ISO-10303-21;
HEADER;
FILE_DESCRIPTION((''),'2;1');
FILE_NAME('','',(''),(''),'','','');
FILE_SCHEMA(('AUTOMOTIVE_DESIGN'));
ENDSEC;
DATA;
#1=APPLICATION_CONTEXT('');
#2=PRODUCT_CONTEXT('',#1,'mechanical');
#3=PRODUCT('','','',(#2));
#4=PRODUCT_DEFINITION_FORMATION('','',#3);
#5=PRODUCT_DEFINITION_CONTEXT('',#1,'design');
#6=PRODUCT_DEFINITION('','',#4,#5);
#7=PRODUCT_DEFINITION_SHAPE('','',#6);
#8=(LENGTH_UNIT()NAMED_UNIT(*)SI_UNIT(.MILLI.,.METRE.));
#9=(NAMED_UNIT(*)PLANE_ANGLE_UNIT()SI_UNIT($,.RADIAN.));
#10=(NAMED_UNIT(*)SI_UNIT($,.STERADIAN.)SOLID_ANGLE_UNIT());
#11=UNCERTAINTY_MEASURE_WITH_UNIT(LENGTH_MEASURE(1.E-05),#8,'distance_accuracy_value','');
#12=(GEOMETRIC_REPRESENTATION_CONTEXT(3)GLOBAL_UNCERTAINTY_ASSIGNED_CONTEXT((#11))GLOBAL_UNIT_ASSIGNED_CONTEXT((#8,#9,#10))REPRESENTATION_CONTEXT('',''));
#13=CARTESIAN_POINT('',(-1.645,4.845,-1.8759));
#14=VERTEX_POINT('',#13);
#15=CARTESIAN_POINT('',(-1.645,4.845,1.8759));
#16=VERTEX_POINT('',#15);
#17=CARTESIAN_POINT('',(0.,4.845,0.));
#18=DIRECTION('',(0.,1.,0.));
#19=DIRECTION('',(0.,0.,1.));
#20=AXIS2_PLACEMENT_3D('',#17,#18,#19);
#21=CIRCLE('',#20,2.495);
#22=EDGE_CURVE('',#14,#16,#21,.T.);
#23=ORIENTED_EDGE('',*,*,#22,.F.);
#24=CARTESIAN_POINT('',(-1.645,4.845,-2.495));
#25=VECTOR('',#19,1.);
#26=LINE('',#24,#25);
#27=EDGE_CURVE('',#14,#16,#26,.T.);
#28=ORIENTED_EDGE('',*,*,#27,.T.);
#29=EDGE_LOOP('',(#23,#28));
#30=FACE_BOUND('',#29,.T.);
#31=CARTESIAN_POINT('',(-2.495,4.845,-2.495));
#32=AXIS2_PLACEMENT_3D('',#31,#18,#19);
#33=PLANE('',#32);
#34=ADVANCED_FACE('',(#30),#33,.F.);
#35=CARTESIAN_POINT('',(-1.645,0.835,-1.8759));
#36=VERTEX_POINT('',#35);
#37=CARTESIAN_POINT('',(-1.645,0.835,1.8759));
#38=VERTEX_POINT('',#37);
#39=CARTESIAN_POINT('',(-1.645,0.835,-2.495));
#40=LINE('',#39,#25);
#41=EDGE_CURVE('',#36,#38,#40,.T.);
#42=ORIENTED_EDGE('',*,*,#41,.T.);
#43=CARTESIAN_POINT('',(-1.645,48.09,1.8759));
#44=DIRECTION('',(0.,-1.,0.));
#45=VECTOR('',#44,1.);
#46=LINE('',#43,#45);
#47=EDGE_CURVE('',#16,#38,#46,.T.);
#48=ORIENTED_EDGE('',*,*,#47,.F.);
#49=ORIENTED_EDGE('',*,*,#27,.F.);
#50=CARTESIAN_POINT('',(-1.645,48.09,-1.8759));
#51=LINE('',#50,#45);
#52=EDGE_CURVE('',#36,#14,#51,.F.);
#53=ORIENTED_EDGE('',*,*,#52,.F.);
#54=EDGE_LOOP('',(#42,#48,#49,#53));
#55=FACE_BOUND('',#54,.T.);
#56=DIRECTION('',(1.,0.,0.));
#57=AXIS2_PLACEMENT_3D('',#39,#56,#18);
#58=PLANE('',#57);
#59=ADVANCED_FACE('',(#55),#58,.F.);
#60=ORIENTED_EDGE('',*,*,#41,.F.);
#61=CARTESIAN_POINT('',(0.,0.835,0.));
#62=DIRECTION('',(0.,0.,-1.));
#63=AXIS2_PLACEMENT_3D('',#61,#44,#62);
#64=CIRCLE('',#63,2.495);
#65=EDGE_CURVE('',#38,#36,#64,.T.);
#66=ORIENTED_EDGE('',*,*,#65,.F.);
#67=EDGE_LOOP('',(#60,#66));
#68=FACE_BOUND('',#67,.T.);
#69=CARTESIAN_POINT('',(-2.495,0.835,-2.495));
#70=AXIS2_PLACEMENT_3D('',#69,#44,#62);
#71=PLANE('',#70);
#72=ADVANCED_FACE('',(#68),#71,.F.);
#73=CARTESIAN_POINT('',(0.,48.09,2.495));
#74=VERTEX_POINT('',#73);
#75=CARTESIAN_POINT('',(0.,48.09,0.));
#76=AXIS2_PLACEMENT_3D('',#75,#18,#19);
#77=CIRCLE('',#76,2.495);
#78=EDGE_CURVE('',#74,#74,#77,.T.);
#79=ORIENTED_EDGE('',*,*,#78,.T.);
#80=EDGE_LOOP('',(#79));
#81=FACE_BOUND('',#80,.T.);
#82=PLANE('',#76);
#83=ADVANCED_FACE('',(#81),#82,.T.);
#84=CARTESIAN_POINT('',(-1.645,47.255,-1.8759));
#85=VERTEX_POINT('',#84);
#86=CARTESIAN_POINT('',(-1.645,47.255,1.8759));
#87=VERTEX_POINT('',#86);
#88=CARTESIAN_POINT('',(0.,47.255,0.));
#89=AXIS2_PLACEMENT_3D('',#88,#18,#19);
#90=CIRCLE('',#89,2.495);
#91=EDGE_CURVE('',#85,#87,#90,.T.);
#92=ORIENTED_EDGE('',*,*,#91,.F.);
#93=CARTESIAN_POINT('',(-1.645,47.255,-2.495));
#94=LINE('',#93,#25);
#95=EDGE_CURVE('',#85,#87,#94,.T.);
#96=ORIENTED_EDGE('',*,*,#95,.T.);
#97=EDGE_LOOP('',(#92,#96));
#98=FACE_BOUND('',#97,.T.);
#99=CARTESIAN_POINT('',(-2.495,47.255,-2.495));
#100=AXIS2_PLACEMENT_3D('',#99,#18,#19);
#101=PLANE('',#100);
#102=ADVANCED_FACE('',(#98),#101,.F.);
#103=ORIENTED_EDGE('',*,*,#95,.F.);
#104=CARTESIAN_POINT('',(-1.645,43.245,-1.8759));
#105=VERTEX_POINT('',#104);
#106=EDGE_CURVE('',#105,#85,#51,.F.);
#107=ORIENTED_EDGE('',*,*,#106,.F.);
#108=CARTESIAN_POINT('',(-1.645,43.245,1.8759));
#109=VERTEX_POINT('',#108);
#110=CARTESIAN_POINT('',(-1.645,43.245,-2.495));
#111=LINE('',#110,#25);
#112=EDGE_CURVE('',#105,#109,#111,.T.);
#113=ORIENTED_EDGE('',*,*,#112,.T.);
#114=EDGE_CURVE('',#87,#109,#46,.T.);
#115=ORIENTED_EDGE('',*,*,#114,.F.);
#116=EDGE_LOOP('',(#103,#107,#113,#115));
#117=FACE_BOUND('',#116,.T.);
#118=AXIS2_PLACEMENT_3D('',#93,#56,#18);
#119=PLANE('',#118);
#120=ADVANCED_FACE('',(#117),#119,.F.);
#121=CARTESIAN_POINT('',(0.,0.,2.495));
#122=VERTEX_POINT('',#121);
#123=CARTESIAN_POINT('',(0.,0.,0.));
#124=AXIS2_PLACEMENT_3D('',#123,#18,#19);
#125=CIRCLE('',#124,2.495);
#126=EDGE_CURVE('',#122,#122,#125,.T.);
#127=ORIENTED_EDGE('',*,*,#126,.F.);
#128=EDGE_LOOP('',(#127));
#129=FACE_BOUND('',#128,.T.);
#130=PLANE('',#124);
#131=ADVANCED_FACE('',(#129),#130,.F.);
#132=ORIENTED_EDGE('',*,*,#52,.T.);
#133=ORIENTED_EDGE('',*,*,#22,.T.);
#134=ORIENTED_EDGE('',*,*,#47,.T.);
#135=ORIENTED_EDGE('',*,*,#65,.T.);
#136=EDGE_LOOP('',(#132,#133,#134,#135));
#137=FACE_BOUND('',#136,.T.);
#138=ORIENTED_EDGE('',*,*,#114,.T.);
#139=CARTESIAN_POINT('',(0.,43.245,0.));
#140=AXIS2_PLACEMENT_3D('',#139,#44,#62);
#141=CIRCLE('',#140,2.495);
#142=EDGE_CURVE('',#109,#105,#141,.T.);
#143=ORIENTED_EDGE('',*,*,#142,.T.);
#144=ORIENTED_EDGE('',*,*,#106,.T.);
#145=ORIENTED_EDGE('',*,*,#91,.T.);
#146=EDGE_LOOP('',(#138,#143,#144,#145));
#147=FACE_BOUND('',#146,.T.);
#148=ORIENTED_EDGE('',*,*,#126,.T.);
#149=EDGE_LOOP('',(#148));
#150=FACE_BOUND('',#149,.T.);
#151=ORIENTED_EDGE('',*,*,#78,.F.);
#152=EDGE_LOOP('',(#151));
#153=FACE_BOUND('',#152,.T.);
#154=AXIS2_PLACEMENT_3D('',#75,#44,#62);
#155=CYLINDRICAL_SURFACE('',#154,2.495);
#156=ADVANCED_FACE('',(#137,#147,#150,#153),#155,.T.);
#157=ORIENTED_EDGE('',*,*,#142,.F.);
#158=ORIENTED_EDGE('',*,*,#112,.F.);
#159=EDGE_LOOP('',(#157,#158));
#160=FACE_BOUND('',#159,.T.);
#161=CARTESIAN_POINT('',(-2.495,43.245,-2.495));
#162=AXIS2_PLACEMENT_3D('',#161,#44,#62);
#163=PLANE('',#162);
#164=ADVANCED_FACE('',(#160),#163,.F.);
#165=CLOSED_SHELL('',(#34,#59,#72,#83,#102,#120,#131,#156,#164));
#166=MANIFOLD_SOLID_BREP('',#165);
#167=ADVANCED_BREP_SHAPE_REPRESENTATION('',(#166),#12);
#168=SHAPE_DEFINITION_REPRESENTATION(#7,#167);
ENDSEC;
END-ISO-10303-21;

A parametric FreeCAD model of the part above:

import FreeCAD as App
import Part
import Sketcher
Q = App.Units.Quantity


def add_polygon(sketch, points):
    """Adds a closed chain of lines whose ends are joined by coincident constraints."""
    first, n = sketch.GeometryCount, len(points)
    for a, b in zip(points, points[1:] + points[:1]):
        sketch.addGeometry(Part.LineSegment(App.Vector(*a, 0), App.Vector(*b, 0)), False)
    for i in range(n):
        sketch.addConstraint(Sketcher.Constraint("Coincident", first + i, 2, first + (i + 1) % n, 1))

doc = App.newDocument("Part")
body = doc.addObject("PartDesign::Body", "Body")

sketch1 = doc.addObject("Sketcher::SketchObject", "Sketch")
body.addObject(sketch1)
sketch1.AttachmentSupport = (doc.XZ_Plane, [""])
sketch1.MapMode = "FlatFace"
sketch1.addGeometry(Part.Circle(App.Vector(0, 0, 0), App.Vector(0, 0, 1), 2.495), False)
sketch1.addConstraint([
    Sketcher.Constraint("Coincident", 0, 3, -1, 1),
    Sketcher.Constraint("Diameter", 0, Q("4.99 mm")),
])
pad1 = doc.addObject("PartDesign::Pad", "Pad")
body.addObject(pad1)
pad1.Profile = sketch1
pad1.Length = 48.09
pad1.Reversed = True

sketch2 = doc.addObject("Sketcher::SketchObject", "Sketch001")
body.addObject(sketch2)
sketch2.AttachmentSupport = (doc.XY_Plane, [""])
sketch2.MapMode = "FlatFace"
add_polygon(sketch2, [(-2.495, 47.255), (-2.495, 43.245), (-1.645, 43.245), (-1.645, 47.255)])
add_polygon(sketch2, [(-2.495, 4.845), (-2.495, 0.835), (-1.645, 0.835), (-1.645, 4.845)])
sketch2.addConstraint([
    Sketcher.Constraint("Vertical", 0),
    Sketcher.Constraint("Horizontal", 1),
    Sketcher.Constraint("Vertical", 2),
    Sketcher.Constraint("Horizontal", 3),
    Sketcher.Constraint("Vertical", 4),
    Sketcher.Constraint("Horizontal", 5),
    Sketcher.Constraint("Vertical", 6),
    Sketcher.Constraint("Horizontal", 7),
    Sketcher.Constraint("Vertical", 3, 2, 4, 2),
    Sketcher.Constraint("Vertical", 2, 2, 5, 2),
    Sketcher.Constraint("Equal", 2, 4),
    Sketcher.Constraint("DistanceX", 1, 1, 1, 2, Q("0.85 mm")),
    Sketcher.Constraint("DistanceY", 0, 2, 0, 1, Q("4.01 mm")),
    Sketcher.Constraint("DistanceY", 6, 2, 1, 2, Q("38.4 mm")),
    Sketcher.Constraint("DistanceX", 0, 2, -1, 1, Q("2.495 mm")),
    Sketcher.Constraint("DistanceY", -1, 1, 0, 2, Q("43.245 mm")),
])
pocket1 = doc.addObject("PartDesign::Pocket", "Pocket")
body.addObject(pocket1)
pocket1.Profile = sketch2
pocket1.Type = "ThroughAll"
pocket1.Midplane = True

doc.recompute()
